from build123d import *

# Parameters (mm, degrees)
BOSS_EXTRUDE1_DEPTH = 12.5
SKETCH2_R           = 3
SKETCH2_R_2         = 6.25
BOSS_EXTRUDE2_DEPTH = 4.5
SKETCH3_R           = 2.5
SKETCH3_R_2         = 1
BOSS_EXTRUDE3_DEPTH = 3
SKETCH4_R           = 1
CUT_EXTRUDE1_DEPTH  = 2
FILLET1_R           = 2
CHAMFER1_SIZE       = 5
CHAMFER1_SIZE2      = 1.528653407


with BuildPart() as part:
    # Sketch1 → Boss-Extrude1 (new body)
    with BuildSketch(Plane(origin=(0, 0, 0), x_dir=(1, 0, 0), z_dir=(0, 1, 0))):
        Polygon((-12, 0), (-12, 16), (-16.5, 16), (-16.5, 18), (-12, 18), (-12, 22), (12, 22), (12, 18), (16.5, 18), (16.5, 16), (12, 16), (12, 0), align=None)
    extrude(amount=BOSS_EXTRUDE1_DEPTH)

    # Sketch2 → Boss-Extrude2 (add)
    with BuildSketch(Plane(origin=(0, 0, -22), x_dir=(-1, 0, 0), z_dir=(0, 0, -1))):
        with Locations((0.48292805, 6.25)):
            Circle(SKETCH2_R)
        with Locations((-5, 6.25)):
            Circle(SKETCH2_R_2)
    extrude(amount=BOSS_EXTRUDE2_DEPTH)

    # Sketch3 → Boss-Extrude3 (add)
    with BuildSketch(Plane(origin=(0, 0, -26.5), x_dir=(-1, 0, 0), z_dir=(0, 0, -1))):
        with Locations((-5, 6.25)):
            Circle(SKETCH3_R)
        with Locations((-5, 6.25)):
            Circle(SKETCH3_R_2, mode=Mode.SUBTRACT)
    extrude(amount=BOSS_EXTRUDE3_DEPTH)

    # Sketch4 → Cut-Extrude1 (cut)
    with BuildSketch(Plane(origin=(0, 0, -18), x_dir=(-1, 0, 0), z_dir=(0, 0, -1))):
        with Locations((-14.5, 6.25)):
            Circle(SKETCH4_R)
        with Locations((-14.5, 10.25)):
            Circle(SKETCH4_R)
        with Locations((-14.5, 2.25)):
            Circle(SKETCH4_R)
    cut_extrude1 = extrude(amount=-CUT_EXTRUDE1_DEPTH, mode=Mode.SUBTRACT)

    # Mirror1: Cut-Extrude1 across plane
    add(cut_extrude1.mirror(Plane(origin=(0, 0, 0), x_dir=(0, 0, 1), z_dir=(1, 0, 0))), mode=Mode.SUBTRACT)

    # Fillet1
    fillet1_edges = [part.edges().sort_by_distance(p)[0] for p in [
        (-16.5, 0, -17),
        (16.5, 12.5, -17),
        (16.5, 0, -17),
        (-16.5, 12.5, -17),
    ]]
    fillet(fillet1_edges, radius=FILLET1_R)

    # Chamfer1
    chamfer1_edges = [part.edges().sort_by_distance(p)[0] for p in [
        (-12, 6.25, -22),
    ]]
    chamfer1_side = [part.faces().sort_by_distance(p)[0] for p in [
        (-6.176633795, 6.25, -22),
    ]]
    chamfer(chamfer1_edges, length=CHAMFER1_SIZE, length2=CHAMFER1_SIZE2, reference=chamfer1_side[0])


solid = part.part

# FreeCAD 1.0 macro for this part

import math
import FreeCAD as App
import Part
import Sketcher
from FreeCAD import Vector


def edges_at(feature, points):
    """Names of the edges that pass closest to the given points."""
    edges = feature.Shape.Edges
    near = lambda p: min(range(len(edges)), key=lambda i: edges[i].distToShape(Part.Vertex(*p))[0])
    return sorted({f"Edge{near(p) + 1}" for p in points})

doc = App.newDocument("Part")
body = doc.addObject("PartDesign::Body", "Body")

sketch1 = body.newObject("Sketcher::SketchObject", "Sketch")
sketch1.AttachmentSupport = (doc.getObject("XZ_Plane"), [""])
sketch1.MapMode = "FlatFace"
sketch1.addGeometry(Part.LineSegment(Vector(-12, -16, 0), Vector(-12, 0, 0)), False)
sketch1.addGeometry(Part.LineSegment(Vector(-12, 0, 0), Vector(12, 0, 0)), False)
sketch1.addGeometry(Part.LineSegment(Vector(12, 0, 0), Vector(12, -16, 0)), False)
sketch1.addGeometry(Part.LineSegment(Vector(12, -16, 0), Vector(16.5, -16, 0)), False)
sketch1.addGeometry(Part.LineSegment(Vector(16.5, -16, 0), Vector(16.5, -18, 0)), False)
sketch1.addGeometry(Part.LineSegment(Vector(16.5, -18, 0), Vector(12, -18, 0)), False)
sketch1.addGeometry(Part.LineSegment(Vector(12, -18, 0), Vector(12, -22, 0)), False)
sketch1.addGeometry(Part.LineSegment(Vector(12, -22, 0), Vector(-12, -22, 0)), False)
sketch1.addGeometry(Part.LineSegment(Vector(-12, -22, 0), Vector(-12, -18, 0)), False)
sketch1.addGeometry(Part.LineSegment(Vector(-12, -18, 0), Vector(-16.5, -18, 0)), False)
sketch1.addGeometry(Part.LineSegment(Vector(-16.5, -18, 0), Vector(-16.5, -16, 0)), False)
sketch1.addGeometry(Part.LineSegment(Vector(-16.5, -16, 0), Vector(-12, -16, 0)), False)
sketch1.addConstraint(Sketcher.Constraint("Coincident", 0, 2, 1, 1))
sketch1.addConstraint(Sketcher.Constraint("Coincident", 1, 2, 2, 1))
sketch1.addConstraint(Sketcher.Constraint("Coincident", 2, 2, 3, 1))
sketch1.addConstraint(Sketcher.Constraint("Coincident", 3, 2, 4, 1))
sketch1.addConstraint(Sketcher.Constraint("Coincident", 4, 2, 5, 1))
sketch1.addConstraint(Sketcher.Constraint("Coincident", 5, 2, 6, 1))
sketch1.addConstraint(Sketcher.Constraint("Coincident", 6, 2, 7, 1))
sketch1.addConstraint(Sketcher.Constraint("Coincident", 7, 2, 8, 1))
sketch1.addConstraint(Sketcher.Constraint("Coincident", 8, 2, 9, 1))
sketch1.addConstraint(Sketcher.Constraint("Coincident", 9, 2, 10, 1))
sketch1.addConstraint(Sketcher.Constraint("Coincident", 10, 2, 11, 1))
sketch1.addConstraint(Sketcher.Constraint("Coincident", 11, 2, 0, 1))
sketch1.addConstraint(Sketcher.Constraint("Vertical", 0))
sketch1.addConstraint(Sketcher.Constraint("Horizontal", 1))
sketch1.addConstraint(Sketcher.Constraint("Vertical", 2))
sketch1.addConstraint(Sketcher.Constraint("Horizontal", 3))
sketch1.addConstraint(Sketcher.Constraint("Vertical", 4))
sketch1.addConstraint(Sketcher.Constraint("Horizontal", 5))
sketch1.addConstraint(Sketcher.Constraint("Vertical", 6))
sketch1.addConstraint(Sketcher.Constraint("Horizontal", 7))
sketch1.addConstraint(Sketcher.Constraint("Vertical", 8))
sketch1.addConstraint(Sketcher.Constraint("Horizontal", 9))
sketch1.addConstraint(Sketcher.Constraint("Vertical", 10))
sketch1.addConstraint(Sketcher.Constraint("Horizontal", 11))
sketch1.addConstraint(Sketcher.Constraint("Symmetric", 0, 2, 1, 2, -1, 1))
sketch1.addConstraint(Sketcher.Constraint("Symmetric", 5, 2, 8, 2, -2))
sketch1.addConstraint(Sketcher.Constraint("Symmetric", 3, 2, 10, 2, -2))
sketch1.addConstraint(Sketcher.Constraint("Vertical", 2, 2, 5, 2))
sketch1.addConstraint(Sketcher.Constraint("DistanceX", 1, 1, 1, 2, 24.0))
sketch1.addConstraint(Sketcher.Constraint("DistanceY", 0, 1, 0, 2, 16.0))
sketch1.addConstraint(Sketcher.Constraint("DistanceY", 4, 2, 4, 1, 2.0))
sketch1.addConstraint(Sketcher.Constraint("DistanceY", 6, 2, 6, 1, 4.0))
sketch1.addConstraint(Sketcher.Constraint("DistanceX", 3, 1, 3, 2, 4.5))
pad1 = body.newObject("PartDesign::Pad", "Pad")
pad1.Profile = sketch1
pad1.Length = 12.5
pad1.Reversed = True

sketch2 = body.newObject("Sketcher::SketchObject", "Sketch001")
sketch2.AttachmentSupport = (doc.getObject("XY_Plane"), [""])
sketch2.MapMode = "FlatFace"
sketch2.AttachmentOffset = App.Placement(Vector(0, 0, -22), App.Rotation())
sketch2.addGeometry(Part.ArcOfCircle(Part.Circle(Vector(5, 6.2, 0), Vector(0, 0, 1), 6.2), math.radians(-151), math.radians(151)), False)
sketch2.addGeometry(Part.ArcOfCircle(Part.Circle(Vector(-0.5, 6.2, 0), Vector(0, 0, 1), 3), math.radians(90), math.radians(270)), False)
sketch2.addConstraint(Sketcher.Constraint("Coincident", 0, 1, 1, 2))
sketch2.addConstraint(Sketcher.Constraint("Coincident", 1, 1, 0, 2))
sketch2.addConstraint(Sketcher.Constraint("Horizontal", 0, 3, 1, 3))
sketch2.addConstraint(Sketcher.Constraint("Vertical", 1, 3, 0, 1))
sketch2.addConstraint(Sketcher.Constraint("Radius", 1, 3.0))
sketch2.addConstraint(Sketcher.Constraint("Radius", 0, 6.25))
sketch2.addConstraint(Sketcher.Constraint("DistanceX", -1, 1, 0, 3, 5.0))
sketch2.addConstraint(Sketcher.Constraint("DistanceY", -1, 1, 0, 3, 6.25))
pad2 = body.newObject("PartDesign::Pad", "Pad001")
pad2.Profile = sketch2
pad2.Length = 4.5
pad2.Reversed = True

sketch3 = body.newObject("Sketcher::SketchObject", "Sketch002")
sketch3.AttachmentSupport = (doc.getObject("XY_Plane"), [""])
sketch3.MapMode = "FlatFace"
sketch3.AttachmentOffset = App.Placement(Vector(0, 0, -26.5), App.Rotation())
sketch3.addGeometry(Part.Circle(Vector(5, 6.2, 0), Vector(0, 0, 1), 2.5), False)
sketch3.addGeometry(Part.Circle(Vector(5, 6.2, 0), Vector(0, 0, 1), 1), False)
sketch3.addConstraint(Sketcher.Constraint("Coincident", 1, 3, 0, 3))
sketch3.addConstraint(Sketcher.Constraint("Diameter", 0, 5.0))
sketch3.addConstraint(Sketcher.Constraint("Diameter", 1, 2.0))
sketch3.addConstraint(Sketcher.Constraint("DistanceX", -1, 1, 0, 3, 5.0))
sketch3.addConstraint(Sketcher.Constraint("DistanceY", -1, 1, 0, 3, 6.25))
pad3 = body.newObject("PartDesign::Pad", "Pad002")
pad3.Profile = sketch3
pad3.Length = 3
pad3.Reversed = True

sketch4 = body.newObject("Sketcher::SketchObject", "Sketch003")
sketch4.AttachmentSupport = (doc.getObject("XY_Plane"), [""])
sketch4.MapMode = "FlatFace"
sketch4.AttachmentOffset = App.Placement(Vector(0, 0, -18), App.Rotation())
sketch4.addGeometry(Part.Circle(Vector(14.5, 6.2, 0), Vector(0, 0, 1), 1), False)
sketch4.addGeometry(Part.Circle(Vector(14.5, 10.2, 0), Vector(0, 0, 1), 1), False)
sketch4.addGeometry(Part.Circle(Vector(14.5, 2.2, 0), Vector(0, 0, 1), 1), False)
sketch4.addConstraint(Sketcher.Constraint("Equal", 0, 1))
sketch4.addConstraint(Sketcher.Constraint("Equal", 1, 2))
sketch4.addConstraint(Sketcher.Constraint("Vertical", 0, 3, 1, 3))
sketch4.addConstraint(Sketcher.Constraint("Vertical", 1, 3, 2, 3))
sketch4.addConstraint(Sketcher.Constraint("Diameter", 0, 2.0))
sketch4.addConstraint(Sketcher.Constraint("DistanceY", 0, 3, 1, 3, 4.0))
sketch4.addConstraint(Sketcher.Constraint("DistanceY", 2, 3, 0, 3, 4.0))
sketch4.addConstraint(Sketcher.Constraint("DistanceX", -1, 1, 0, 3, 14.5))
sketch4.addConstraint(Sketcher.Constraint("DistanceY", -1, 1, 0, 3, 6.25))
pocket1 = body.newObject("PartDesign::Pocket", "Pocket")
pocket1.Profile = sketch4
pocket1.Length = 2
pocket1.Reversed = True
doc.recompute()

mirrored = body.newObject("PartDesign::Mirrored", "Mirrored")
mirrored.Originals = [pocket1]
mirrored.MirrorPlane = (doc.getObject("YZ_Plane"), [""])
body.Tip = mirrored
doc.recompute()

fillet = body.newObject("PartDesign::Fillet", "Fillet")
fillet.Base = (mirrored, edges_at(mirrored, [
    (-16.5, 0, -17),
    (16.5, 12.5, -17),
    (16.5, 0, -17),
    (-16.5, 12.5, -17),
]))
fillet.Radius = 2
doc.recompute()

chamfer = body.newObject("PartDesign::Chamfer", "Chamfer")
chamfer.Base = (fillet, edges_at(fillet, [(-12, 6.25, -22)]))
chamfer.ChamferType = "Two distances"
chamfer.Size = 5
chamfer.Size2 = 1.528653

doc.recompute()
